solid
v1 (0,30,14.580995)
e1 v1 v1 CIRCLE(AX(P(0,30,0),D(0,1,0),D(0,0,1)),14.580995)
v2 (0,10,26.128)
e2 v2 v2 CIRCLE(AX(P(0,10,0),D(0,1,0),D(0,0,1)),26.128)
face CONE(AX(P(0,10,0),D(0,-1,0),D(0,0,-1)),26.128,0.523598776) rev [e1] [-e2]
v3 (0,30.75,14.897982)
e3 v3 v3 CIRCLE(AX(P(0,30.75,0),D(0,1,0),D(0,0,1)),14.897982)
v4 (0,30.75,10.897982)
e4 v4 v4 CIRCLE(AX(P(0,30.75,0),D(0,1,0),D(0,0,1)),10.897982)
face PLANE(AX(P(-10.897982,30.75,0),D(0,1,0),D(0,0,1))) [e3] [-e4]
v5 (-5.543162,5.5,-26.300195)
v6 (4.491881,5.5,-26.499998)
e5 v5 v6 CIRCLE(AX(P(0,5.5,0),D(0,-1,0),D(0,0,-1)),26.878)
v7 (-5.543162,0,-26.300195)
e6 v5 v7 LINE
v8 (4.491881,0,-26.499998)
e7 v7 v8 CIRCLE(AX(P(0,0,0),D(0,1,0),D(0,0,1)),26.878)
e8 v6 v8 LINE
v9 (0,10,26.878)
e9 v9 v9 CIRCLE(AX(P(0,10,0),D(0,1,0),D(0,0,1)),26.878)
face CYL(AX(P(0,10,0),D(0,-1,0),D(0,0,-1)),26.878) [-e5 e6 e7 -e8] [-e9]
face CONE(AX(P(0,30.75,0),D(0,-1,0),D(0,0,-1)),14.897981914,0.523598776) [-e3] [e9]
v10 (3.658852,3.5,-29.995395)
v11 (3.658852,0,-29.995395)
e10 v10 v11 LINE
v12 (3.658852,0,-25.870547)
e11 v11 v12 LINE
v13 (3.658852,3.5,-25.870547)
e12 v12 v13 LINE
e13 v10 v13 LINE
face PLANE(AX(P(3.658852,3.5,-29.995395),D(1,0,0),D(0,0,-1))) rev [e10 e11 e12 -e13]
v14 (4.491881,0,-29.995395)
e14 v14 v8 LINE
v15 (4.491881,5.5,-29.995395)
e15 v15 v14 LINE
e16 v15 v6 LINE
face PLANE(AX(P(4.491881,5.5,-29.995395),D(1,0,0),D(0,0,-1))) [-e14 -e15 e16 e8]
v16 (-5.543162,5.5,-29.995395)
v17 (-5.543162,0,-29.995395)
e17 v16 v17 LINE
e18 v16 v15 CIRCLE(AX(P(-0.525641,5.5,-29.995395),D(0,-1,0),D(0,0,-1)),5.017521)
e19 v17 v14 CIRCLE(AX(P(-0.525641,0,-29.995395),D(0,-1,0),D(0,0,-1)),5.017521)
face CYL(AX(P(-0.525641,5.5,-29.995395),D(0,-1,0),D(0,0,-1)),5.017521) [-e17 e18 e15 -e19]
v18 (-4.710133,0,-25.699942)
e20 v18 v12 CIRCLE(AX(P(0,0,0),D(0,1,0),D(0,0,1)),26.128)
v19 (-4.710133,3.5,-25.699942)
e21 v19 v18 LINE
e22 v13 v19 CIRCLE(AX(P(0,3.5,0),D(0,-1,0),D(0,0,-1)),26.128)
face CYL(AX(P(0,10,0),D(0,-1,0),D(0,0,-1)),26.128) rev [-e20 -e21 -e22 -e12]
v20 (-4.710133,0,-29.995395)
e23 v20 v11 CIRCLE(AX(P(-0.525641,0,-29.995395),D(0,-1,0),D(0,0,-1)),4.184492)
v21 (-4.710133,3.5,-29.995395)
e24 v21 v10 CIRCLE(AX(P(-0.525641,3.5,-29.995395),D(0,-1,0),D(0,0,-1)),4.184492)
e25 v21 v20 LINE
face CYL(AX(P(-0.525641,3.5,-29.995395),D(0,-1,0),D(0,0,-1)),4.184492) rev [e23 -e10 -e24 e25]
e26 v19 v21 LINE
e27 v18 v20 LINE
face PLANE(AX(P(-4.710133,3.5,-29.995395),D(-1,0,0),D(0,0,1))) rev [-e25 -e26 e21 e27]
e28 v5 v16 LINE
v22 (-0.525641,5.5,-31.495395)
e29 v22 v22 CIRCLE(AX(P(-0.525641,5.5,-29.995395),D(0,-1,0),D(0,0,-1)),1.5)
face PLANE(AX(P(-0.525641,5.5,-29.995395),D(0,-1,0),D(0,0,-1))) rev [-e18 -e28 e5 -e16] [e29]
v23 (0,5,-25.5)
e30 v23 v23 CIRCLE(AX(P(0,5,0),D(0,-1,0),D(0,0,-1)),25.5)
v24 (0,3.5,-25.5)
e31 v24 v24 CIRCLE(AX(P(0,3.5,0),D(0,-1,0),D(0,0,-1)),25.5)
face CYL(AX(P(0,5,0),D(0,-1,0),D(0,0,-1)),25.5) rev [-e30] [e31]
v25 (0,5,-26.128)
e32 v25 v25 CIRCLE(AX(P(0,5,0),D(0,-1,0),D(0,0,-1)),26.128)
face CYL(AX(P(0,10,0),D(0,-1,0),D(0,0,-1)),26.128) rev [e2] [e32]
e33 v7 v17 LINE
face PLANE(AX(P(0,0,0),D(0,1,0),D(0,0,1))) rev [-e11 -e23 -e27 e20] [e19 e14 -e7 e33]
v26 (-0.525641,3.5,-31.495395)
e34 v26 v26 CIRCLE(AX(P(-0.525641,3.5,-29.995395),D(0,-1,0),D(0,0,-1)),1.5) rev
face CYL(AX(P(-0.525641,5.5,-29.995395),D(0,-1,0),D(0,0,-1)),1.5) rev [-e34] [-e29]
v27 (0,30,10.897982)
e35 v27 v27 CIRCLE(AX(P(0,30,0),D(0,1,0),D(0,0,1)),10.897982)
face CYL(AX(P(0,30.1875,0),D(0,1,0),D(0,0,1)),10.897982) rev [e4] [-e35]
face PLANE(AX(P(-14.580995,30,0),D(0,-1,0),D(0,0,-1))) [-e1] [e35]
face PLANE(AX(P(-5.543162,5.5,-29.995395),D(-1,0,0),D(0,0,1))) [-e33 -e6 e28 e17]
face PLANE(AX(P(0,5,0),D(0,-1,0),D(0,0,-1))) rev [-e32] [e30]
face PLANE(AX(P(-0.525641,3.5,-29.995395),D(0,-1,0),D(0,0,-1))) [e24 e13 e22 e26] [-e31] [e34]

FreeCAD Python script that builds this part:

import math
import FreeCAD as App
import Part
import Sketcher

V = App.Vector
Q = App.Units.Quantity

doc = App.newDocument("Part")
body = doc.addObject("PartDesign::Body", "Body")

# Sketch on XZ plane
sketch1 = doc.addObject("Sketcher::SketchObject", "Sketch")
body.addObject(sketch1)
sketch1.AttachmentSupport = (doc.XZ_Plane, [""])
sketch1.MapMode = "FlatFace"
sketch1.addGeometry([
    Part.Circle(V(0, 0, 0), V(0, 0, 1), 27),
    Part.Circle(V(0, 0, 0), V(0, 0, 1), 26),
], False)
sketch1.addConstraint([
    Sketcher.Constraint("Coincident", 0, 3, -1, 1),
    Sketcher.Constraint("Coincident", 1, 3, -1, 1),
    Sketcher.Constraint("Diameter", 0, 53.756),
    Sketcher.Constraint("Diameter", 1, 52.256),
])
pad1 = doc.addObject("PartDesign::Pad", "Pad")
body.addObject(pad1)
pad1.Profile = sketch1
pad1.Length = 10
pad1.Reversed = True

# Sketch on XZ plane
sketch2 = doc.addObject("Sketcher::SketchObject", "Sketch001")
body.addObject(sketch2)
sketch2.AttachmentSupport = (doc.XZ_Plane, [""])
sketch2.MapMode = "FlatFace"
sketch2.addGeometry([
    Part.LineSegment(V(-5.5, -26.3, 0), V(-5.5, -30, 0)),  # 0
    Part.ArcOfCircle(Part.Circle(V(-0.5, -30, 0), V(0, 0, 1), 5), math.radians(180), math.radians(360)),  # 1
    Part.LineSegment(V(4.5, -30, 0), V(4.5, -26.5, 0)),  # 2
    Part.ArcOfCircle(Part.Circle(V(0, 0.6, 0), V(0, 0, 1), 27.4), math.radians(-102), math.radians(-81)),  # 3
    Part.Circle(V(-0.5, -30, 0), V(0, 0, 1), 1.5),  # 4
], False)
sketch2.addConstraint([
    Sketcher.Constraint("Tangent", 0, 2, 1, 1),
    Sketcher.Constraint("Tangent", 1, 2, 2, 1),
    Sketcher.Constraint("Coincident", 2, 2, 3, 2),
    Sketcher.Constraint("Coincident", 3, 1, 0, 1),
    Sketcher.Constraint("Vertical", 0),
    Sketcher.Constraint("Vertical", 2),
    Sketcher.Constraint("Coincident", 4, 3, 1, 3),
    Sketcher.Constraint("Diameter", 4, 3.0),
    Sketcher.Constraint("Radius", 3, 27.428),
    Sketcher.Constraint("Radius", 1, 5.017521),
    Sketcher.Constraint("DistanceY", 0, 2, 0, 1, 3.6952),
    Sketcher.Constraint("DistanceY", 2, 1, 2, 2, 3.495397),
    Sketcher.Constraint("DistanceX", 1, 3, -1, 1, 0.525641),
    Sketcher.Constraint("DistanceY", -1, 1, 3, 3, 0.559532),
])
pad2 = doc.addObject("PartDesign::Pad", "Pad001")
body.addObject(pad2)
pad2.Profile = sketch2
pad2.Length = 5.5
pad2.Reversed = True

# Sketch on XZ plane
sketch3 = doc.addObject("Sketcher::SketchObject", "Sketch002")
body.addObject(sketch3)
sketch3.AttachmentSupport = (doc.XZ_Plane, [""])
sketch3.MapMode = "FlatFace"
sketch3.addGeometry([
    Part.LineSegment(V(-4.7, -25.7, 0), V(-4.7, -30, 0)),
    Part.ArcOfCircle(Part.Circle(V(-0.5, -30, 0), V(0, 0, 1), 4.2), math.radians(180), math.radians(360)),
    Part.LineSegment(V(3.7, -30, 0), V(3.7, -25.8, 0)),
    Part.ArcOfCircle(Part.Circle(V(-0.2, 0, 0), V(0, 0, 1), 26.1), math.radians(-100.02), math.radians(-81.59)),
], False)
sketch3.addConstraint([
    Sketcher.Constraint("Tangent", 0, 2, 1, 1),
    Sketcher.Constraint("Tangent", 1, 2, 2, 1),
    Sketcher.Constraint("Coincident", 2, 2, 3, 2),
    Sketcher.Constraint("Coincident", 3, 1, 0, 1),
    Sketcher.Constraint("Vertical", 0),
    Sketcher.Constraint("Vertical", 2),
    Sketcher.Constraint("Radius", 3, 26.12532),
    Sketcher.Constraint("Radius", 1, 4.184492),
    Sketcher.Constraint("DistanceY", 2, 1, 2, 2, 4.177791),
    Sketcher.Constraint("DistanceY", 0, 2, 0, 1, 4.295452),
    Sketcher.Constraint("DistanceX", 1, 3, -1, 1, 0.525641),
    Sketcher.Constraint("DistanceY", -1, 1, 3, 3, 0.026639),
])
pocket1 = doc.addObject("PartDesign::Pocket", "Pocket")
body.addObject(pocket1)
pocket1.Profile = sketch3
pocket1.Length = 3.5

# Sketch on XY plane
sketch4 = doc.addObject("Sketcher::SketchObject", "Sketch003")
body.addObject(sketch4)
sketch4.AttachmentSupport = (doc.XY_Plane, [""])
sketch4.MapMode = "FlatFace"
sketch4.addGeometry([
    Part.LineSegment(V(-14.9, 30.8, 0), V(-26.9, 10, 0)),  # 0
    Part.LineSegment(V(-26.9, 10, 0), V(-26.1, 10, 0)),  # 1
    Part.LineSegment(V(-26.1, 10, 0), V(-14.6, 30, 0)),  # 2
    Part.LineSegment(V(-14.6, 30, 0), V(-10.9, 30, 0)),  # 3
    Part.LineSegment(V(-10.9, 30, 0), V(-10.9, 30.8, 0)),  # 4
    Part.LineSegment(V(-10.9, 30.8, 0), V(-14.9, 30.8, 0)),  # 5
], False)
sketch4.addConstraint([
    Sketcher.Constraint("Coincident", 0, 2, 1, 1),
    Sketcher.Constraint("Coincident", 1, 2, 2, 1),
    Sketcher.Constraint("Coincident", 2, 2, 3, 1),
    Sketcher.Constraint("Coincident", 3, 2, 4, 1),
    Sketcher.Constraint("Coincident", 4, 2, 5, 1),
    Sketcher.Constraint("Coincident", 5, 2, 0, 1),
    Sketcher.Constraint("Horizontal", 1),
    Sketcher.Constraint("Horizontal", 3),
    Sketcher.Constraint("Vertical", 4),
    Sketcher.Constraint("Horizontal", 5),
    Sketcher.Constraint("Parallel", 0, 2),
    Sketcher.Constraint("Equal", 1, 4),
    Sketcher.Constraint("DistanceX", 5, 2, 5, 1, 4.0),
    Sketcher.Constraint("Angle", 0, Q("-120 deg")),
    Sketcher.Constraint("DistanceY", -1, 1, 0, 2, 10.0),
    Sketcher.Constraint("DistanceY", -1, 1, 2, 2, 30.0),
    Sketcher.Constraint("DistanceX", 1, 1, 1, 2, 0.75),
    Sketcher.Constraint("DistanceX", 0, 2, -1, 1, 26.878),
])
revolution = doc.addObject("PartDesign::Revolution", "Revolution")
body.addObject(revolution)
revolution.Profile = sketch4
revolution.ReferenceAxis = (sketch4, ["V_Axis"])
revolution.Angle = 360

# Sketch on XZ plane
sketch5 = doc.addObject("Sketcher::SketchObject", "Sketch004")
body.addObject(sketch5)
sketch5.AttachmentSupport = (doc.XZ_Plane, [""])
sketch5.MapMode = "FlatFace"
sketch5.AttachmentOffset = App.Placement(V(0, 0, -3.5), App.Rotation())
sketch5.addGeometry([
    Part.Circle(V(0, 0, 0), V(0, 0, 1), 26),
    Part.Circle(V(0, 0, 0), V(0, 0, 1), 26),
], False)
sketch5.addConstraint([
    Sketcher.Constraint("Coincident", 0, 3, -1, 1),
    Sketcher.Constraint("Coincident", 1, 3, -1, 1),
    Sketcher.Constraint("Diameter", 1, 51.0),
    Sketcher.Constraint("Diameter", 0, 52.256),
])
pad3 = doc.addObject("PartDesign::Pad", "Pad002")
body.addObject(pad3)
pad3.Profile = sketch5
pad3.Length = 1.5
pad3.Reversed = True

doc.recompute()
